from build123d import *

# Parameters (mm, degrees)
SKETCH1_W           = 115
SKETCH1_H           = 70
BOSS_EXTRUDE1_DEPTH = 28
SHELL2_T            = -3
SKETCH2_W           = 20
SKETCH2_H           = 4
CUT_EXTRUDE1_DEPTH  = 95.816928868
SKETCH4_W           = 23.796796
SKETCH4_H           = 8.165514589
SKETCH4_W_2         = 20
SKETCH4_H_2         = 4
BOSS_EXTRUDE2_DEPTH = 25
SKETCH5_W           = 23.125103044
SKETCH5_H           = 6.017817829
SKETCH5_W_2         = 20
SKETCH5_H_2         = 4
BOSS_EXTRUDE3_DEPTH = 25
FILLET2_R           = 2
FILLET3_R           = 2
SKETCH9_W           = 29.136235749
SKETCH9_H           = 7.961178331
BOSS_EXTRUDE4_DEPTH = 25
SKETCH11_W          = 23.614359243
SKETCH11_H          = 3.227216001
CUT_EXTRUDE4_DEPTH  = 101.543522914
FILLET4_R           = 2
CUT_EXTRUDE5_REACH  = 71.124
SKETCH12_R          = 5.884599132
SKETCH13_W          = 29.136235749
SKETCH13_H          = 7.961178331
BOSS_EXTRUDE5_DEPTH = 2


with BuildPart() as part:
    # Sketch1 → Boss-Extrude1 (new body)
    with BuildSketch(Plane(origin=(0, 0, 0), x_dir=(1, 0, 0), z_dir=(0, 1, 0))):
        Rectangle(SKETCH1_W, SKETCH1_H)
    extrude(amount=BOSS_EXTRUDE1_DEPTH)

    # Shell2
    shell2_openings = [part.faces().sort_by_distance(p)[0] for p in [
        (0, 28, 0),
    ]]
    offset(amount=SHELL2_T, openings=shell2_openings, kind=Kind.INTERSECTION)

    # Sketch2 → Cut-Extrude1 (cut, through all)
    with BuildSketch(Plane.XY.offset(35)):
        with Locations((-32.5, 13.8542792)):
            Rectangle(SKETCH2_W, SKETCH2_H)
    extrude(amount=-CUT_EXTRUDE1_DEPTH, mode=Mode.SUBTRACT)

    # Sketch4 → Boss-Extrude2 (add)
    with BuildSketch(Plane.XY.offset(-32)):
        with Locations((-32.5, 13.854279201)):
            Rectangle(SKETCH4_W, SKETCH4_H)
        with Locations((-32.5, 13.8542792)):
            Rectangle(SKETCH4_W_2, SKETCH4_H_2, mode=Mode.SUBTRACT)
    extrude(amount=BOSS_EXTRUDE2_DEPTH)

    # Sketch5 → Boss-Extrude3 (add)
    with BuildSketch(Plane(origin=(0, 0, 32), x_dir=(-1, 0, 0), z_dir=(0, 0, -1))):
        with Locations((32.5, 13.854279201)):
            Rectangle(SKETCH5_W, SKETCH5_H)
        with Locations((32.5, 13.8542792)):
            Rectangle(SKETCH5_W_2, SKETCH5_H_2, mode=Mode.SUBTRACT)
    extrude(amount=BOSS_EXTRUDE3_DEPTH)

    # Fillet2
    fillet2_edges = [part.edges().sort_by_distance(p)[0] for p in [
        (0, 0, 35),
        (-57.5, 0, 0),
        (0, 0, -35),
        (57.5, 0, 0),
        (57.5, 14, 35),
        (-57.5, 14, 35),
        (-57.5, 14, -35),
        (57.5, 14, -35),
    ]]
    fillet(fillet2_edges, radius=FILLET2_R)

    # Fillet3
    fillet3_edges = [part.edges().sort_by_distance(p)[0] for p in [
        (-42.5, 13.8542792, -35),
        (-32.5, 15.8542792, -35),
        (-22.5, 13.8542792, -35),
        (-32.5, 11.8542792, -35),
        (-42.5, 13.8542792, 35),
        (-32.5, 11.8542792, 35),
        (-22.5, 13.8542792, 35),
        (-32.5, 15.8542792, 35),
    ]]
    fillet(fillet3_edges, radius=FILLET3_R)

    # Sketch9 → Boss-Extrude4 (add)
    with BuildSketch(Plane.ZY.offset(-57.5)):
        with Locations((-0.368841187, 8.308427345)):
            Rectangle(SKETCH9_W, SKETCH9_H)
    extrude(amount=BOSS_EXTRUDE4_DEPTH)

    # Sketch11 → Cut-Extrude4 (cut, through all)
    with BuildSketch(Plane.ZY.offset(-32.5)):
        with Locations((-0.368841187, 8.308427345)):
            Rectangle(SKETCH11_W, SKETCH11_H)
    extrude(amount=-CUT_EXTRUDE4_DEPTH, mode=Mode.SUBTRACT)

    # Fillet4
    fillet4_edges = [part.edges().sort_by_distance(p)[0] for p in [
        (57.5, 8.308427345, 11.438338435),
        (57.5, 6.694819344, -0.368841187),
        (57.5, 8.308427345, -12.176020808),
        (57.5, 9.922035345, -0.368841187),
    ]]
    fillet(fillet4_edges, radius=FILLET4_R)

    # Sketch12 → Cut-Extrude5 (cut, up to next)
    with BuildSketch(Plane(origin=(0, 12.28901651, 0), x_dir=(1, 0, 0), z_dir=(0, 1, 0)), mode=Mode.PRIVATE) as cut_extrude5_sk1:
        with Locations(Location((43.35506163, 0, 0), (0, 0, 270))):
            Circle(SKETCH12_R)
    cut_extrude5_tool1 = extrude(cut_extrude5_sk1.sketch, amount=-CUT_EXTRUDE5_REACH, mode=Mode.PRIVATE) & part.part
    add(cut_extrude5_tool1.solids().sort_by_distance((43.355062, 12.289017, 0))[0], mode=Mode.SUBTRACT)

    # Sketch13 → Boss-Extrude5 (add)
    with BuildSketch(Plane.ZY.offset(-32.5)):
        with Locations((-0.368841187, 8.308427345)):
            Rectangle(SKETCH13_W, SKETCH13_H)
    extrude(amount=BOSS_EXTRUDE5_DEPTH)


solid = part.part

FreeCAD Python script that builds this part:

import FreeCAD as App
import Part
import Sketcher
from FreeCAD import Vector
Q = App.Units.Quantity


def edges_at(feature, points):
    """Names of the edges that pass closest to the given points."""
    edges = feature.Shape.Edges
    near = lambda p: min(range(len(edges)), key=lambda i: edges[i].distToShape(Part.Vertex(*p))[0])
    return sorted({f"Edge{near(p) + 1}" for p in points})


def faces_at(feature, points):
    """Names of the faces that lie closest to the given points."""
    faces = feature.Shape.Faces
    near = lambda p: min(range(len(faces)), key=lambda i: faces[i].distToShape(Part.Vertex(*p))[0])
    return sorted({f"Face{near(p) + 1}" for p in points})


def add_polygon(sketch, points):
    """Adds a closed chain of lines whose ends are joined by coincident constraints."""
    first, n = sketch.GeometryCount, len(points)
    for a, b in zip(points, points[1:] + points[:1]):
        sketch.addGeometry(Part.LineSegment(App.Vector(*a, 0), App.Vector(*b, 0)), False)
    for i in range(n):
        sketch.addConstraint(Sketcher.Constraint("Coincident", first + i, 2, first + (i + 1) % n, 1))

doc = App.newDocument("Part")
body = doc.addObject("PartDesign::Body", "Body")

sketch1 = body.newObject("Sketcher::SketchObject", "Sketch")
sketch1.AttachmentSupport = (doc.getObject("XZ_Plane"), [""])
sketch1.MapMode = "FlatFace"
add_polygon(sketch1, [(-58, -35), (-58, 35), (58, 35), (58, -35)])
sketch1.addConstraint([
    Sketcher.Constraint("Vertical", 0),
    Sketcher.Constraint("Horizontal", 1),
    Sketcher.Constraint("Vertical", 2),
    Sketcher.Constraint("Horizontal", 3),
    Sketcher.Constraint("Symmetric", 0, 2, 2, 2, -1, 1),
    Sketcher.Constraint("DistanceX", 1, 1, 1, 2, Q("115 mm")),
    Sketcher.Constraint("DistanceY", 0, 1, 0, 2, Q("70 mm")),
])
pad1 = body.newObject("PartDesign::Pad", "Pad")
pad1.Profile = sketch1
pad1.Length = 28
pad1.Reversed = True
doc.recompute()

thickness = body.newObject("PartDesign::Thickness", "Thickness")
thickness.Base = (pad1, faces_at(pad1, [(0, 28, 0)]))
thickness.Value = 3
thickness.Reversed = True
thickness.Join = "Intersection"

sketch2 = body.newObject("Sketcher::SketchObject", "Sketch001")
sketch2.AttachmentSupport = (doc.getObject("XY_Plane"), [""])
sketch2.MapMode = "FlatFace"
sketch2.AttachmentOffset = App.Placement(Vector(0, 0, 35), App.Rotation())
add_polygon(sketch2, [(-42.5, 15.9), (-42.5, 11.9), (-22.5, 11.9), (-22.5, 15.9)])
sketch2.addConstraint([
    Sketcher.Constraint("Vertical", 0),
    Sketcher.Constraint("Horizontal", 1),
    Sketcher.Constraint("Vertical", 2),
    Sketcher.Constraint("Horizontal", 3),
    Sketcher.Constraint("DistanceX", 1, 1, 1, 2, Q("20 mm")),
    Sketcher.Constraint("DistanceY", 0, 2, 0, 1, Q("4 mm")),
    Sketcher.Constraint("DistanceX", 0, 2, -1, 1, Q("42.5 mm")),
    Sketcher.Constraint("DistanceY", -1, 1, 0, 2, Q("11.854279 mm")),
])
pocket1 = body.newObject("PartDesign::Pocket", "Pocket")
pocket1.Profile = sketch2
pocket1.Type = "ThroughAll"

sketch3 = body.newObject("Sketcher::SketchObject", "Sketch002")
sketch3.AttachmentSupport = (doc.getObject("XY_Plane"), [""])
sketch3.MapMode = "FlatFace"
sketch3.AttachmentOffset = App.Placement(Vector(0, 0, -32), App.Rotation())
add_polygon(sketch3, [(-44.4, 17.9), (-44.4, 9.8), (-20.6, 9.8), (-20.6, 17.9)])
add_polygon(sketch3, [(-22.5, 11.9), (-42.5, 11.9), (-42.5, 15.9), (-22.5, 15.9)])
sketch3.addConstraint([
    Sketcher.Constraint("Vertical", 0),
    Sketcher.Constraint("Horizontal", 1),
    Sketcher.Constraint("Vertical", 2),
    Sketcher.Constraint("Horizontal", 3),
    Sketcher.Constraint("Horizontal", 4),
    Sketcher.Constraint("Vertical", 5),
    Sketcher.Constraint("Horizontal", 6),
    Sketcher.Constraint("Vertical", 7),
    Sketcher.Constraint("DistanceX", 4, 2, 4, 1, Q("20 mm")),
    Sketcher.Constraint("DistanceY", 5, 1, 5, 2, Q("4 mm")),
    Sketcher.Constraint("DistanceX", 4, 2, -1, 1, Q("42.5 mm")),
    Sketcher.Constraint("DistanceX", 1, 2, -1, 1, Q("20.601602 mm")),
    Sketcher.Constraint("DistanceX", 0, 2, 4, 2, Q("1.898398 mm")),
    Sketcher.Constraint("DistanceY", 0, 2, 0, 1, Q("8.165515 mm")),
    Sketcher.Constraint("DistanceY", -1, 1, 0, 2, Q("9.771522 mm")),
    Sketcher.Constraint("DistanceY", -1, 1, 4, 2, Q("11.854279 mm")),
])
pad2 = body.newObject("PartDesign::Pad", "Pad001")
pad2.Profile = sketch3
pad2.Length = 25

sketch4 = body.newObject("Sketcher::SketchObject", "Sketch003")
sketch4.AttachmentSupport = (doc.getObject("XY_Plane"), [""])
sketch4.MapMode = "FlatFace"
sketch4.AttachmentOffset = App.Placement(Vector(0, 0, 32), App.Rotation())
add_polygon(sketch4, [(-20.9, 16.9), (-20.9, 10.8), (-44.1, 10.8), (-44.1, 16.9)])
add_polygon(sketch4, [(-42.5, 11.9), (-22.5, 11.9), (-22.5, 15.9), (-42.5, 15.9)])
sketch4.addConstraint([
    Sketcher.Constraint("Vertical", 0),
    Sketcher.Constraint("Horizontal", 1),
    Sketcher.Constraint("Vertical", 2),
    Sketcher.Constraint("Horizontal", 3),
    Sketcher.Constraint("Horizontal", 4),
    Sketcher.Constraint("Vertical", 5),
    Sketcher.Constraint("Horizontal", 6),
    Sketcher.Constraint("Vertical", 7),
    Sketcher.Constraint("DistanceX", 4, 1, 4, 2, Q("20 mm")),
    Sketcher.Constraint("DistanceY", 5, 1, 5, 2, Q("4 mm")),
    Sketcher.Constraint("DistanceX", 4, 2, -1, 1, Q("22.5 mm")),
    Sketcher.Constraint("DistanceX", 1, 2, 1, 1, Q("23.125103 mm")),
    Sketcher.Constraint("DistanceY", 0, 2, 0, 1, Q("6.017818 mm")),
    Sketcher.Constraint("DistanceX", 0, 2, -1, 1, Q("20.937448 mm")),
    Sketcher.Constraint("DistanceY", -1, 1, 0, 2, Q("10.84537 mm")),
    Sketcher.Constraint("DistanceY", -1, 1, 4, 2, Q("11.854279 mm")),
])
pad3 = body.newObject("PartDesign::Pad", "Pad002")
pad3.Profile = sketch4
pad3.Length = 25
pad3.Reversed = True
doc.recompute()

fillet = body.newObject("PartDesign::Fillet", "Fillet")
fillet.Base = (pad3, edges_at(pad3, [
    (0, 0, 35),
    (-57.5, 0, 0),
    (0, 0, -35),
    (57.5, 0, 0),
    (57.5, 14, 35),
    (-57.5, 14, 35),
    (-57.5, 14, -35),
    (57.5, 14, -35),
]))
fillet.Radius = 2
doc.recompute()

fillet2 = body.newObject("PartDesign::Fillet", "Fillet001")
fillet2.Base = (fillet, edges_at(fillet, [
    (-42.5, 13.854, -35),
    (-32.5, 15.854, -35),
    (-22.5, 13.854, -35),
    (-32.5, 11.854, -35),
    (-42.5, 13.854, 35),
    (-32.5, 11.854, 35),
    (-22.5, 13.854, 35),
    (-32.5, 15.854, 35),
]))
fillet2.Radius = 2

sketch5 = body.newObject("Sketcher::SketchObject", "Sketch004")
sketch5.AttachmentSupport = (doc.getObject("YZ_Plane"), [""])
sketch5.MapMode = "FlatFace"
sketch5.AttachmentOffset = App.Placement(Vector(0, 0, 57.5), App.Rotation())
add_polygon(sketch5, [(12, -15), (4, -15), (4, 14), (12, 14)])
sketch5.addConstraint([
    Sketcher.Constraint("Horizontal", 0),
    Sketcher.Constraint("Vertical", 1),
    Sketcher.Constraint("Horizontal", 2),
    Sketcher.Constraint("Vertical", 3),
    Sketcher.Constraint("DistanceX", 0, 2, 0, 1, Q("7.961178 mm")),
    Sketcher.Constraint("DistanceY", 1, 1, 1, 2, Q("29.136236 mm")),
    Sketcher.Constraint("DistanceX", -1, 1, 0, 2, Q("4.327838 mm")),
    Sketcher.Constraint("DistanceY", 0, 2, -1, 1, Q("14.936959 mm")),
])
pad4 = body.newObject("PartDesign::Pad", "Pad003")
pad4.Profile = sketch5
pad4.Length = 25
pad4.Reversed = True

sketch6 = body.newObject("Sketcher::SketchObject", "Sketch005")
sketch6.AttachmentSupport = (doc.getObject("YZ_Plane"), [""])
sketch6.MapMode = "FlatFace"
sketch6.AttachmentOffset = App.Placement(Vector(0, 0, 32.5), App.Rotation())
add_polygon(sketch6, [(9.9, -12.2), (6.7, -12.2), (6.7, 11.4), (9.9, 11.4)])
sketch6.addConstraint([
    Sketcher.Constraint("Horizontal", 0),
    Sketcher.Constraint("Vertical", 1),
    Sketcher.Constraint("Horizontal", 2),
    Sketcher.Constraint("Vertical", 3),
    Sketcher.Constraint("DistanceY", 1, 1, 1, 2, Q("23.614359 mm")),
    Sketcher.Constraint("DistanceX", 0, 2, 0, 1, Q("3.227216 mm")),
    Sketcher.Constraint("DistanceX", -1, 1, 0, 2, Q("6.694819 mm")),
    Sketcher.Constraint("DistanceY", 0, 2, -1, 1, Q("12.176021 mm")),
])
pocket2 = body.newObject("PartDesign::Pocket", "Pocket001")
pocket2.Profile = sketch6
pocket2.Type = "ThroughAll"
pocket2.Reversed = True
doc.recompute()

fillet3 = body.newObject("PartDesign::Fillet", "Fillet002")
fillet3.Base = (pocket2, edges_at(pocket2, [
    (57.5, 8.308, 11.438),
    (57.5, 6.695, -0.369),
    (57.5, 8.308, -12.176),
    (57.5, 9.922, -0.369),
]))
fillet3.Radius = 2

sketch7 = body.newObject("Sketcher::SketchObject", "Sketch006")
sketch7.AttachmentSupport = (doc.getObject("XZ_Plane"), [""])
sketch7.MapMode = "FlatFace"
sketch7.AttachmentOffset = App.Placement(Vector(0, 0, -12.289017), App.Rotation())
sketch7.addGeometry(Part.Circle(Vector(43, 0, 0), Vector(0, 0, 1), 6), False)
sketch7.addConstraint([
    Sketcher.Constraint("PointOnObject", 0, 3, -1),
    Sketcher.Constraint("Diameter", 0, Q("11.769198 mm")),
    Sketcher.Constraint("DistanceX", -1, 1, 0, 3, Q("43.355062 mm")),
])
pocket3 = body.newObject("PartDesign::Pocket", "Pocket002")
pocket3.Profile = sketch7
pocket3.Type = "UpToFirst"
pocket3.Reversed = True

sketch8 = body.newObject("Sketcher::SketchObject", "Sketch007")
sketch8.AttachmentSupport = (doc.getObject("YZ_Plane"), [""])
sketch8.MapMode = "FlatFace"
sketch8.AttachmentOffset = App.Placement(Vector(0, 0, 32.5), App.Rotation())
add_polygon(sketch8, [(12, -15), (4, -15), (4, 14), (12, 14)])
sketch8.addConstraint([
    Sketcher.Constraint("Horizontal", 0),
    Sketcher.Constraint("Vertical", 1),
    Sketcher.Constraint("Horizontal", 2),
    Sketcher.Constraint("Vertical", 3),
    Sketcher.Constraint("DistanceX", 0, 2, 0, 1, Q("7.961178 mm")),
    Sketcher.Constraint("DistanceY", 1, 1, 1, 2, Q("29.136236 mm")),
    Sketcher.Constraint("DistanceX", -1, 1, 0, 2, Q("4.327838 mm")),
    Sketcher.Constraint("DistanceY", 0, 2, -1, 1, Q("14.936959 mm")),
])
pad5 = body.newObject("PartDesign::Pad", "Pad004")
pad5.Profile = sketch8
pad5.Length = 2
pad5.Reversed = True

doc.recompute()
